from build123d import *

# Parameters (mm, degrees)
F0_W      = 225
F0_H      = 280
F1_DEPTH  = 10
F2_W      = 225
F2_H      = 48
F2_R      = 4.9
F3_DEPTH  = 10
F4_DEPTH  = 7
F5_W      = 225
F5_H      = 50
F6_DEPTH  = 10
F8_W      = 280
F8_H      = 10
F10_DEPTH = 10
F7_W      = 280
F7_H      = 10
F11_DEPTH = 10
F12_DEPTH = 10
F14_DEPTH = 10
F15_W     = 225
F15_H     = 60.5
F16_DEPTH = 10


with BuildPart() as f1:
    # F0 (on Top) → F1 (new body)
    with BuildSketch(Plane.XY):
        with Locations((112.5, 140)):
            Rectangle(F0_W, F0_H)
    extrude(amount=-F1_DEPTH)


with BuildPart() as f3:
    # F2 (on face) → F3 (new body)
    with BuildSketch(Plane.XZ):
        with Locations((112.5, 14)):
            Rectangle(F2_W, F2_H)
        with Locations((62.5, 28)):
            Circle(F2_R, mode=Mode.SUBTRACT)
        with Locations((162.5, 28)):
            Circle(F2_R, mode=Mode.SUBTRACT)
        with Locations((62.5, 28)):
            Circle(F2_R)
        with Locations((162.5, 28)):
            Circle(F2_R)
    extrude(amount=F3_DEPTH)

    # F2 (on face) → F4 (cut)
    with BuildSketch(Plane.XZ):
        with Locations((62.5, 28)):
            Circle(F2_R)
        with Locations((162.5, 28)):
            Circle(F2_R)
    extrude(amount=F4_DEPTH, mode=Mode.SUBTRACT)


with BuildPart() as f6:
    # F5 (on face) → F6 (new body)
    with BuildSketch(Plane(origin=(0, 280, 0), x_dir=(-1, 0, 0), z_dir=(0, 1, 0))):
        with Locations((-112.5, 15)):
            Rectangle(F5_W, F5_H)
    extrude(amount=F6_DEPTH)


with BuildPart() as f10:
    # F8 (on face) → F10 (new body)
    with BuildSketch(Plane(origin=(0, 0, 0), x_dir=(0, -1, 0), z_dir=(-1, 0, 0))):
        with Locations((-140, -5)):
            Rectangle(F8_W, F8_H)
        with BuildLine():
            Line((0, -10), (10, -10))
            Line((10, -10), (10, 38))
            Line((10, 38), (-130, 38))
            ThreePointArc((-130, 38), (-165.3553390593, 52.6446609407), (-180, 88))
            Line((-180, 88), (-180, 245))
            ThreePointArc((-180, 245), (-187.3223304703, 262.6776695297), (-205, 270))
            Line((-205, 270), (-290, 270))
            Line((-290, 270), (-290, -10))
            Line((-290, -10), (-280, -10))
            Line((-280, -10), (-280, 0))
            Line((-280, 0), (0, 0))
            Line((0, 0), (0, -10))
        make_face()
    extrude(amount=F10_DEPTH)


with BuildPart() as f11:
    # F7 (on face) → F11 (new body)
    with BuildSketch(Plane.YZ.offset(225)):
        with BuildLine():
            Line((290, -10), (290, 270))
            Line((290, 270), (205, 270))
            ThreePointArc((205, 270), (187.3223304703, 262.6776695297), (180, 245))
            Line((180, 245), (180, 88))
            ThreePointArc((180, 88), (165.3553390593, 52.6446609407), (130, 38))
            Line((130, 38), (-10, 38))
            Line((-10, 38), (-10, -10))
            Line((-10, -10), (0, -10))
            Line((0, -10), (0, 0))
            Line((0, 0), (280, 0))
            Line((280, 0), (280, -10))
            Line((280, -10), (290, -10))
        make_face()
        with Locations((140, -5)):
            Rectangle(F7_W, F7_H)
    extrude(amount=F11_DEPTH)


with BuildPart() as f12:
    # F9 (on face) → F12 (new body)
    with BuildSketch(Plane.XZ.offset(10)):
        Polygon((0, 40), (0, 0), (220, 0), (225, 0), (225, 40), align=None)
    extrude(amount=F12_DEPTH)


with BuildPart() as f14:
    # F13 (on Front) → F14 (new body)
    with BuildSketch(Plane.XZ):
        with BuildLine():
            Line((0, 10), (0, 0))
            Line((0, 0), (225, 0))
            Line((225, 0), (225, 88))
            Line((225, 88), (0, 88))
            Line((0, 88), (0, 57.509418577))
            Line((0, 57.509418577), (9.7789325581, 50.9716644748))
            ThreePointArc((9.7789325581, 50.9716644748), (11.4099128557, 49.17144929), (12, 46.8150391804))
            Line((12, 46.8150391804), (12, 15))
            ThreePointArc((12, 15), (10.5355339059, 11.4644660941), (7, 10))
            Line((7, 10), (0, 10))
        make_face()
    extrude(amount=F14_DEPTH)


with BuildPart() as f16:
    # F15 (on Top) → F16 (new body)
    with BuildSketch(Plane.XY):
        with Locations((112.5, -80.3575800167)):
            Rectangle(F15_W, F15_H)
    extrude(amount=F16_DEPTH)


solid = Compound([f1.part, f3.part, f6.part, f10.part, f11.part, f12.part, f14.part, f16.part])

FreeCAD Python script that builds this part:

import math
import FreeCAD as App
import Part
import Sketcher

V = App.Vector
Q = App.Units.Quantity

doc = App.newDocument("Part")
body = doc.addObject("PartDesign::Body", "Body")

sketch1 = body.newObject("Sketcher::SketchObject", "Sketch")
sketch1.AttachmentSupport = (doc.getObject("XY_Plane"), [""])
sketch1.MapMode = "FlatFace"
sketch1.addGeometry([
    Part.LineSegment(V(0, 280, 0), V(0, 0, 0)),
    Part.LineSegment(V(0, 0, 0), V(225, 0, 0)),
    Part.LineSegment(V(225, 0, 0), V(225, 280, 0)),
    Part.LineSegment(V(225, 280, 0), V(0, 280, 0)),
], False)
sketch1.addConstraint([
    Sketcher.Constraint("Coincident", 0, 2, 1, 1),
    Sketcher.Constraint("Coincident", 1, 2, 2, 1),
    Sketcher.Constraint("Coincident", 2, 2, 3, 1),
    Sketcher.Constraint("Coincident", 3, 2, 0, 1),
    Sketcher.Constraint("Vertical", 0),
    Sketcher.Constraint("Horizontal", 1),
    Sketcher.Constraint("Vertical", 2),
    Sketcher.Constraint("Horizontal", 3),
    Sketcher.Constraint("Coincident", 0, 2, -1, 1),
    Sketcher.Constraint("DistanceX", 1, 1, 1, 2, Q("225 mm")),
    Sketcher.Constraint("DistanceY", 0, 2, 0, 1, Q("280 mm")),
])
pad1 = body.newObject("PartDesign::Pad", "Pad")
pad1.Profile = sketch1
pad1.Length = 10
pad1.Reversed = True
body2 = doc.addObject("PartDesign::Body", "Body001")

sketch2 = body2.newObject("Sketcher::SketchObject", "Sketch001")
sketch2.AttachmentSupport = (doc.getObject("XZ_Plane001"), [""])
sketch2.MapMode = "FlatFace"
sketch2.addGeometry([
    Part.LineSegment(V(0, 38, 0), V(0, -10, 0)),
    Part.LineSegment(V(0, -10, 0), V(225, -10, 0)),
    Part.LineSegment(V(225, -10, 0), V(225, 38, 0)),
    Part.LineSegment(V(225, 38, 0), V(0, 38, 0)),
], False)
sketch2.addConstraint([
    Sketcher.Constraint("Coincident", 0, 2, 1, 1),
    Sketcher.Constraint("Coincident", 1, 2, 2, 1),
    Sketcher.Constraint("Coincident", 2, 2, 3, 1),
    Sketcher.Constraint("Coincident", 3, 2, 0, 1),
    Sketcher.Constraint("Vertical", 0),
    Sketcher.Constraint("Horizontal", 1),
    Sketcher.Constraint("Vertical", 2),
    Sketcher.Constraint("Horizontal", 3),
    Sketcher.Constraint("PointOnObject", 0, 2, -2),
    Sketcher.Constraint("DistanceX", 1, 1, 1, 2, Q("225 mm")),
    Sketcher.Constraint("DistanceY", 0, 2, 0, 1, Q("48 mm")),
    Sketcher.Constraint("DistanceY", 0, 2, -1, 1, Q("10 mm")),
])
pad2 = body2.newObject("PartDesign::Pad", "Pad001")
pad2.Profile = sketch2
pad2.Length = 10

sketch3 = body2.newObject("Sketcher::SketchObject", "Sketch002")
sketch3.AttachmentSupport = (doc.getObject("XZ_Plane001"), [""])
sketch3.MapMode = "FlatFace"
sketch3.addGeometry([
    Part.Circle(V(62.5, 28, 0), V(0, 0, 1), 4.9),
    Part.Circle(V(162.5, 28, 0), V(0, 0, 1), 4.9),
], False)
sketch3.addConstraint([
    Sketcher.Constraint("Equal", 0, 1),
    Sketcher.Constraint("Horizontal", 0, 3, 1, 3),
    Sketcher.Constraint("Diameter", 0, Q("9.8 mm")),
    Sketcher.Constraint("DistanceY", -1, 1, 0, 3, Q("28 mm")),
    Sketcher.Constraint("DistanceX", 0, 3, 1, 3, Q("100 mm")),
    Sketcher.Constraint("DistanceX", -1, 1, 0, 3, Q("62.5 mm")),
])
pocket1 = body2.newObject("PartDesign::Pocket", "Pocket")
pocket1.Profile = sketch3
pocket1.Length = 7
pocket1.Reversed = True
body3 = doc.addObject("PartDesign::Body", "Body002")

sketch4 = body3.newObject("Sketcher::SketchObject", "Sketch003")
sketch4.AttachmentSupport = (doc.getObject("XZ_Plane002"), [""])
sketch4.MapMode = "FlatFace"
sketch4.AttachmentOffset = App.Placement(V(0, 0, -280), App.Rotation())
sketch4.addGeometry([
    Part.LineSegment(V(225, 40, 0), V(225, -10, 0)),
    Part.LineSegment(V(225, -10, 0), V(0, -10, 0)),
    Part.LineSegment(V(0, -10, 0), V(0, 40, 0)),
    Part.LineSegment(V(0, 40, 0), V(225, 40, 0)),
], False)
sketch4.addConstraint([
    Sketcher.Constraint("Coincident", 0, 2, 1, 1),
    Sketcher.Constraint("Coincident", 1, 2, 2, 1),
    Sketcher.Constraint("Coincident", 2, 2, 3, 1),
    Sketcher.Constraint("Coincident", 3, 2, 0, 1),
    Sketcher.Constraint("Vertical", 0),
    Sketcher.Constraint("Horizontal", 1),
    Sketcher.Constraint("Vertical", 2),
    Sketcher.Constraint("Horizontal", 3),
    Sketcher.Constraint("PointOnObject", 1, 2, -2),
    Sketcher.Constraint("DistanceX", 1, 2, 1, 1, Q("225 mm")),
    Sketcher.Constraint("DistanceY", 0, 2, 0, 1, Q("50 mm")),
    Sketcher.Constraint("DistanceY", 0, 2, -1, 1, Q("10 mm")),
])
pad3 = body3.newObject("PartDesign::Pad", "Pad002")
pad3.Profile = sketch4
pad3.Length = 10
pad3.Reversed = True
body4 = doc.addObject("PartDesign::Body", "Body003")

sketch5 = body4.newObject("Sketcher::SketchObject", "Sketch004")
sketch5.AttachmentSupport = (doc.getObject("YZ_Plane003"), [""])
sketch5.MapMode = "FlatFace"
sketch5.addGeometry([
    Part.LineSegment(V(-10, -10, 0), V(-10, 38, 0)),
    Part.LineSegment(V(-10, 38, 0), V(130, 38, 0)),
    Part.ArcOfCircle(Part.Circle(V(130, 88, 0), V(0, 0, 1), 50), math.radians(-90), math.radians(0)),
    Part.LineSegment(V(180, 88, 0), V(180, 245, 0)),
    Part.ArcOfCircle(Part.Circle(V(205, 245, 0), V(0, 0, 1), 25), math.radians(90), math.radians(180)),
    Part.LineSegment(V(205, 270, 0), V(290, 270, 0)),
    Part.LineSegment(V(290, 270, 0), V(290, -10, 0)),
    Part.LineSegment(V(290, -10, 0), V(-10, -10, 0)),
], False)
sketch5.addConstraint([
    Sketcher.Constraint("Coincident", 0, 2, 1, 1),
    Sketcher.Constraint("Tangent", 1, 2, 2, 1),
    Sketcher.Constraint("Tangent", 2, 2, 3, 1),
    Sketcher.Constraint("Tangent", 3, 2, 4, 2),
    Sketcher.Constraint("Tangent", 4, 1, 5, 1),
    Sketcher.Constraint("Coincident", 5, 2, 6, 1),
    Sketcher.Constraint("Coincident", 6, 2, 7, 1),
    Sketcher.Constraint("Coincident", 7, 2, 0, 1),
    Sketcher.Constraint("Vertical", 0),
    Sketcher.Constraint("Horizontal", 1),
    Sketcher.Constraint("Vertical", 3),
    Sketcher.Constraint("Horizontal", 5),
    Sketcher.Constraint("Vertical", 6),
    Sketcher.Constraint("Horizontal", 7),
    Sketcher.Constraint("Radius", 2, Q("50 mm")),
    Sketcher.Constraint("Radius", 4, Q("25 mm")),
    Sketcher.Constraint("DistanceX", 1, 1, 1, 2, Q("140 mm")),
    Sketcher.Constraint("DistanceX", 5, 1, 5, 2, Q("85 mm")),
    Sketcher.Constraint("DistanceY", 0, 1, 0, 2, Q("48 mm")),
    Sketcher.Constraint("DistanceY", 3, 1, 3, 2, Q("157 mm")),
    Sketcher.Constraint("DistanceX", -1, 1, 2, 3, Q("130 mm")),
    Sketcher.Constraint("DistanceY", -1, 1, 2, 3, Q("88 mm")),
])
pad4 = body4.newObject("PartDesign::Pad", "Pad003")
pad4.Profile = sketch5
pad4.Length = 10
pad4.Reversed = True
body5 = doc.addObject("PartDesign::Body", "Body004")

sketch6 = body5.newObject("Sketcher::SketchObject", "Sketch005")
sketch6.AttachmentSupport = (doc.getObject("YZ_Plane004"), [""])
sketch6.MapMode = "FlatFace"
sketch6.AttachmentOffset = App.Placement(V(0, 0, 225), App.Rotation())
sketch6.addGeometry([
    Part.LineSegment(V(290, -10, 0), V(290, 270, 0)),
    Part.LineSegment(V(290, 270, 0), V(205, 270, 0)),
    Part.ArcOfCircle(Part.Circle(V(205, 245, 0), V(0, 0, 1), 25), math.radians(90), math.radians(180)),
    Part.LineSegment(V(180, 245, 0), V(180, 88, 0)),
    Part.ArcOfCircle(Part.Circle(V(130, 88, 0), V(0, 0, 1), 50), math.radians(-90), math.radians(0)),
    Part.LineSegment(V(130, 38, 0), V(-10, 38, 0)),
    Part.LineSegment(V(-10, 38, 0), V(-10, -10, 0)),
    Part.LineSegment(V(-10, -10, 0), V(290, -10, 0)),
], False)
sketch6.addConstraint([
    Sketcher.Constraint("Coincident", 0, 2, 1, 1),
    Sketcher.Constraint("Tangent", 1, 2, 2, 1),
    Sketcher.Constraint("Tangent", 2, 2, 3, 1),
    Sketcher.Constraint("Tangent", 3, 2, 4, 2),
    Sketcher.Constraint("Tangent", 4, 1, 5, 1),
    Sketcher.Constraint("Coincident", 5, 2, 6, 1),
    Sketcher.Constraint("Coincident", 6, 2, 7, 1),
    Sketcher.Constraint("Coincident", 7, 2, 0, 1),
    Sketcher.Constraint("Vertical", 0),
    Sketcher.Constraint("Horizontal", 1),
    Sketcher.Constraint("Vertical", 3),
    Sketcher.Constraint("Horizontal", 5),
    Sketcher.Constraint("Vertical", 6),
    Sketcher.Constraint("Horizontal", 7),
    Sketcher.Constraint("Radius", 2, Q("25 mm")),
    Sketcher.Constraint("Radius", 4, Q("50 mm")),
    Sketcher.Constraint("DistanceX", 1, 2, 1, 1, Q("85 mm")),
    Sketcher.Constraint("DistanceX", 5, 2, 5, 1, Q("140 mm")),
    Sketcher.Constraint("DistanceY", 0, 1, 0, 2, Q("280 mm")),
    Sketcher.Constraint("DistanceY", 3, 2, 3, 1, Q("157 mm")),
    Sketcher.Constraint("DistanceX", -1, 1, 2, 3, Q("205 mm")),
    Sketcher.Constraint("DistanceY", -1, 1, 2, 3, Q("245 mm")),
])
pad5 = body5.newObject("PartDesign::Pad", "Pad004")
pad5.Profile = sketch6
pad5.Length = 10
body6 = doc.addObject("PartDesign::Body", "Body005")

sketch7 = body6.newObject("Sketcher::SketchObject", "Sketch006")
sketch7.AttachmentSupport = (doc.getObject("XZ_Plane005"), [""])
sketch7.MapMode = "FlatFace"
sketch7.AttachmentOffset = App.Placement(V(0, 0, 10), App.Rotation())
sketch7.addGeometry([
    Part.LineSegment(V(0, 40, 0), V(0, 0, 0)),
    Part.LineSegment(V(0, 0, 0), V(225, 0, 0)),
    Part.LineSegment(V(225, 0, 0), V(225, 40, 0)),
    Part.LineSegment(V(225, 40, 0), V(0, 40, 0)),
], False)
sketch7.addConstraint([
    Sketcher.Constraint("Coincident", 0, 2, 1, 1),
    Sketcher.Constraint("Coincident", 1, 2, 2, 1),
    Sketcher.Constraint("Coincident", 2, 2, 3, 1),
    Sketcher.Constraint("Coincident", 3, 2, 0, 1),
    Sketcher.Constraint("Vertical", 0),
    Sketcher.Constraint("Horizontal", 1),
    Sketcher.Constraint("Vertical", 2),
    Sketcher.Constraint("Horizontal", 3),
    Sketcher.Constraint("Coincident", 0, 2, -1, 1),
    Sketcher.Constraint("DistanceX", 1, 1, 1, 2, Q("225 mm")),
    Sketcher.Constraint("DistanceY", 0, 2, 0, 1, Q("40 mm")),
])
pad6 = body6.newObject("PartDesign::Pad", "Pad005")
pad6.Profile = sketch7
pad6.Length = 10
body7 = doc.addObject("PartDesign::Body", "Body006")

sketch8 = body7.newObject("Sketcher::SketchObject", "Sketch007")
sketch8.AttachmentSupport = (doc.getObject("XZ_Plane006"), [""])
sketch8.MapMode = "FlatFace"
sketch8.addGeometry([
    Part.LineSegment(V(0, 10, 0), V(0, 0, 0)),
    Part.LineSegment(V(0, 0, 0), V(225, 0, 0)),
    Part.LineSegment(V(225, 0, 0), V(225, 88, 0)),
    Part.LineSegment(V(225, 88, 0), V(0, 88, 0)),
    Part.LineSegment(V(0, 88, 0), V(0, 57.509419, 0)),
    Part.LineSegment(V(0, 57.509419, 0), V(9.778933, 50.971664, 0)),
    Part.ArcOfCircle(Part.Circle(V(7, 46.815039, 0), V(0, 0, 1), 5), math.radians(0), math.radians(56.235095)),
    Part.LineSegment(V(12, 46.815039, 0), V(12, 15, 0)),
    Part.ArcOfCircle(Part.Circle(V(7, 15, 0), V(0, 0, 1), 5), math.radians(-90), math.radians(0)),
    Part.LineSegment(V(7, 10, 0), V(0, 10, 0)),
], False)
sketch8.addConstraint([
    Sketcher.Constraint("Coincident", 0, 2, 1, 1),
    Sketcher.Constraint("Coincident", 1, 2, 2, 1),
    Sketcher.Constraint("Coincident", 2, 2, 3, 1),
    Sketcher.Constraint("Coincident", 3, 2, 4, 1),
    Sketcher.Constraint("Coincident", 4, 2, 5, 1),
    Sketcher.Constraint("Tangent", 5, 2, 6, 2),
    Sketcher.Constraint("Tangent", 6, 1, 7, 1),
    Sketcher.Constraint("Tangent", 7, 2, 8, 2),
    Sketcher.Constraint("Tangent", 8, 1, 9, 1),
    Sketcher.Constraint("Coincident", 9, 2, 0, 1),
    Sketcher.Constraint("Vertical", 0),
    Sketcher.Constraint("Horizontal", 1),
    Sketcher.Constraint("Vertical", 2),
    Sketcher.Constraint("Horizontal", 3),
    Sketcher.Constraint("Vertical", 4),
    Sketcher.Constraint("Vertical", 7),
    Sketcher.Constraint("Horizontal", 9),
    Sketcher.Constraint("Coincident", 0, 2, -1, 1),
    Sketcher.Constraint("Equal", 6, 8),
    Sketcher.Constraint("PointOnObject", 3, 2, -2),
    Sketcher.Constraint("Radius", 6, Q("5 mm")),
    Sketcher.Constraint("DistanceX", 1, 1, 1, 2, Q("225 mm")),
    Sketcher.Constraint("DistanceX", 9, 2, 9, 1, Q("7 mm")),
    Sketcher.Constraint("DistanceY", 0, 2, 0, 1, Q("10 mm")),
    Sketcher.Constraint("DistanceY", 2, 1, 2, 2, Q("88 mm")),
    Sketcher.Constraint("DistanceY", 4, 2, 4, 1, Q("30.490581 mm")),
    Sketcher.Constraint("DistanceY", 7, 2, 7, 1, Q("31.815039 mm")),
])
pad7 = body7.newObject("PartDesign::Pad", "Pad006")
pad7.Profile = sketch8
pad7.Length = 10
body8 = doc.addObject("PartDesign::Body", "Body007")

sketch9 = body8.newObject("Sketcher::SketchObject", "Sketch008")
sketch9.AttachmentSupport = (doc.getObject("XY_Plane007"), [""])
sketch9.MapMode = "FlatFace"
sketch9.addGeometry([
    Part.LineSegment(V(0, -50.10758, 0), V(0, -110.60758, 0)),
    Part.LineSegment(V(0, -110.60758, 0), V(225, -110.60758, 0)),
    Part.LineSegment(V(225, -110.60758, 0), V(225, -50.10758, 0)),
    Part.LineSegment(V(225, -50.10758, 0), V(0, -50.10758, 0)),
], False)
sketch9.addConstraint([
    Sketcher.Constraint("Coincident", 0, 2, 1, 1),
    Sketcher.Constraint("Coincident", 1, 2, 2, 1),
    Sketcher.Constraint("Coincident", 2, 2, 3, 1),
    Sketcher.Constraint("Coincident", 3, 2, 0, 1),
    Sketcher.Constraint("Vertical", 0),
    Sketcher.Constraint("Horizontal", 1),
    Sketcher.Constraint("Vertical", 2),
    Sketcher.Constraint("Horizontal", 3),
    Sketcher.Constraint("PointOnObject", 0, 2, -2),
    Sketcher.Constraint("DistanceX", 1, 1, 1, 2, Q("225 mm")),
    Sketcher.Constraint("DistanceY", 0, 2, 0, 1, Q("60.5 mm")),
    Sketcher.Constraint("DistanceY", 0, 2, -1, 1, Q("110.60758 mm")),
])
pad8 = body8.newObject("PartDesign::Pad", "Pad007")
pad8.Profile = sketch9
pad8.Length = 10

doc.recompute()
